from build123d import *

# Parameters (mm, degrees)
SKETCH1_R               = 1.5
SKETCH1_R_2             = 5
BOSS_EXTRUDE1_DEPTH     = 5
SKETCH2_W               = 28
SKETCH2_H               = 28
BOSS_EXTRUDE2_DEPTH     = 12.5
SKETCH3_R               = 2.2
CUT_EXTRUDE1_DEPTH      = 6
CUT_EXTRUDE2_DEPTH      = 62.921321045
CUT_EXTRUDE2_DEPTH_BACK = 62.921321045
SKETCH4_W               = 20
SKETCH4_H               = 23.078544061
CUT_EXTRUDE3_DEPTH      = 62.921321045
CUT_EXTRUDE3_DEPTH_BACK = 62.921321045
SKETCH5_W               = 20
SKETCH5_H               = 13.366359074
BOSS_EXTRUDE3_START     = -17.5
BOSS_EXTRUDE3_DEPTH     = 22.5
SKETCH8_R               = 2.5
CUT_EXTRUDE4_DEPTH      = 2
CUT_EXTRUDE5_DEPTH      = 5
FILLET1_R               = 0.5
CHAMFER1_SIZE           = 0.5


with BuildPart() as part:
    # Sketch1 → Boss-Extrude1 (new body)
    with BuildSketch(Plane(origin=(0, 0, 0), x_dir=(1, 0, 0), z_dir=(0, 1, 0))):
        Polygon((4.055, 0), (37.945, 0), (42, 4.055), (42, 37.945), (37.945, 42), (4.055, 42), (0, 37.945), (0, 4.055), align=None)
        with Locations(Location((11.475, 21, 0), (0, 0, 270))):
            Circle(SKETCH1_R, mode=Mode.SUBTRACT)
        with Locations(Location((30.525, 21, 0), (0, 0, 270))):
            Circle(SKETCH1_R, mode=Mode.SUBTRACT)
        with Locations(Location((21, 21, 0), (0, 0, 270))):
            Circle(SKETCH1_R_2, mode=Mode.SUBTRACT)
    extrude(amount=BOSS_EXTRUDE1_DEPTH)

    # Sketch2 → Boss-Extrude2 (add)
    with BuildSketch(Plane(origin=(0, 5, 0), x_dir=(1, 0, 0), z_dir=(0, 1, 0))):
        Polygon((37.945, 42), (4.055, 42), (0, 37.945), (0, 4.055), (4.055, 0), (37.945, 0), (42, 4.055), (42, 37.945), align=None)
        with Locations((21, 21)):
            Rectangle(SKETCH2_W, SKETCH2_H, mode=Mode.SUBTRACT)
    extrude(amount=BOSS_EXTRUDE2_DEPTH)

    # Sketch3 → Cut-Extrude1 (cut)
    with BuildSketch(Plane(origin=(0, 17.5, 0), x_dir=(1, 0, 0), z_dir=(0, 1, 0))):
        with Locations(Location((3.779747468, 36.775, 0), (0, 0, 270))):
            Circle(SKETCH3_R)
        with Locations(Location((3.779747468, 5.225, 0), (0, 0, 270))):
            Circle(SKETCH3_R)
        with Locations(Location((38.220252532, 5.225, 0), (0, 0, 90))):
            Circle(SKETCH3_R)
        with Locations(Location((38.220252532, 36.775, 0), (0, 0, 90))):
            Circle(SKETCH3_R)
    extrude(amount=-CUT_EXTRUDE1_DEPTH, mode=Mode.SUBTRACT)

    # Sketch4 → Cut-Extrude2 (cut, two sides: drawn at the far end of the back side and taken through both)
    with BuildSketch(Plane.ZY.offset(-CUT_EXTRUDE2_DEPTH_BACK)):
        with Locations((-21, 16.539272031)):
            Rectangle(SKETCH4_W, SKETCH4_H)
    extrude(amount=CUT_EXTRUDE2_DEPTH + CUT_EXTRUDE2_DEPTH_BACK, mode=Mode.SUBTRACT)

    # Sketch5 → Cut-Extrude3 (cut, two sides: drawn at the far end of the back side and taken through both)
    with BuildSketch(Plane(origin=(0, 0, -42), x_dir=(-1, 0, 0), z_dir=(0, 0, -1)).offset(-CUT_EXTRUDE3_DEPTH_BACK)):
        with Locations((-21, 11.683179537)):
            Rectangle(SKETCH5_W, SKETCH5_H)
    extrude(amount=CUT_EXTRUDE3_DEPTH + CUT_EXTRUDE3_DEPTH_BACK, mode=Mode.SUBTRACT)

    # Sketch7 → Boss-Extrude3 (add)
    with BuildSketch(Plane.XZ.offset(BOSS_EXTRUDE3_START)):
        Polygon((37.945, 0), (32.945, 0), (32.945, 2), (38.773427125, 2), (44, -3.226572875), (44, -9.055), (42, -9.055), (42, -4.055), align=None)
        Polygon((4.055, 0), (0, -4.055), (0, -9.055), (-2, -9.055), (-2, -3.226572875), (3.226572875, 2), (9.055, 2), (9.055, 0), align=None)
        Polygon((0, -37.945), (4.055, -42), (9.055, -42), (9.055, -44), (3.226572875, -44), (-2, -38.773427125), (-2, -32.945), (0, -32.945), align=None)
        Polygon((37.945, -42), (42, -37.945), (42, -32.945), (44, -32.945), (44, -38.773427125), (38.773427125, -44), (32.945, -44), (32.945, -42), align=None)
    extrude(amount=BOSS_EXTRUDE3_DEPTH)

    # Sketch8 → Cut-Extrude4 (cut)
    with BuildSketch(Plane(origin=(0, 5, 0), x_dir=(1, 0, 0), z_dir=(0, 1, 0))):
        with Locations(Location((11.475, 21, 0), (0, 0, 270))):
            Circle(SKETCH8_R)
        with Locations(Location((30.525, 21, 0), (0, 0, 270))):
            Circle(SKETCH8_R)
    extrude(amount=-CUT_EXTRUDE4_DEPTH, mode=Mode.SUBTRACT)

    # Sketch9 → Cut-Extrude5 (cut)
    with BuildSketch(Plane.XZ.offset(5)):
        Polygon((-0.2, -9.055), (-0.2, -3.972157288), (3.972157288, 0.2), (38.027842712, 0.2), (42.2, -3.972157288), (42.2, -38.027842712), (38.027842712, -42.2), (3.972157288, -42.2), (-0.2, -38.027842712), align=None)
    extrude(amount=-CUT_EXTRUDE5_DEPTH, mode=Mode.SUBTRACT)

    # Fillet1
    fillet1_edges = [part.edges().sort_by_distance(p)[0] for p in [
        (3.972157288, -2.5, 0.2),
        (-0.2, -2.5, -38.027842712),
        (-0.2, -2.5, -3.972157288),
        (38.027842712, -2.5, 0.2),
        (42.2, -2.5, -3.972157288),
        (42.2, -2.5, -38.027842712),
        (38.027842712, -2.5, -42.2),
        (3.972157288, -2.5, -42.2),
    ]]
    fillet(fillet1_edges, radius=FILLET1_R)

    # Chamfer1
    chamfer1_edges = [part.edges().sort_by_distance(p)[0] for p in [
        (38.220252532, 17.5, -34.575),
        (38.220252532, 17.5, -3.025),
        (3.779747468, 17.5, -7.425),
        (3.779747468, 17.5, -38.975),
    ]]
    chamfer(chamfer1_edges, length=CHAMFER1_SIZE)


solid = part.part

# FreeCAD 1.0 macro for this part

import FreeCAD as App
import Part
import Sketcher


def edges_at(feature, points):
    """Names of the edges that pass closest to the given points."""
    edges = feature.Shape.Edges
    near = lambda p: min(range(len(edges)), key=lambda i: edges[i].distToShape(Part.Vertex(*p))[0])
    return sorted({f"Edge{near(p) + 1}" for p in points})

doc = App.newDocument("Part")
body = doc.addObject("PartDesign::Body", "Body")

sketch1 = body.newObject("Sketcher::SketchObject", "Sketch")
sketch1.AttachmentSupport = (doc.getObject("XZ_Plane"), [""])
sketch1.MapMode = "FlatFace"
sketch1.addGeometry(Part.LineSegment(App.Vector(4.1, 0, 0), App.Vector(37.9, 0, 0)), False)
sketch1.addGeometry(Part.LineSegment(App.Vector(37.9, 0, 0), App.Vector(42, -4.1, 0)), False)
sketch1.addGeometry(Part.LineSegment(App.Vector(42, -4.1, 0), App.Vector(42, -37.9, 0)), False)
sketch1.addGeometry(Part.LineSegment(App.Vector(42, -37.9, 0), App.Vector(37.9, -42, 0)), False)
sketch1.addGeometry(Part.LineSegment(App.Vector(37.9, -42, 0), App.Vector(4.1, -42, 0)), False)
sketch1.addGeometry(Part.LineSegment(App.Vector(4.1, -42, 0), App.Vector(0, -37.9, 0)), False)
sketch1.addGeometry(Part.LineSegment(App.Vector(0, -37.9, 0), App.Vector(0, -4.1, 0)), False)
sketch1.addGeometry(Part.LineSegment(App.Vector(0, -4.1, 0), App.Vector(4.1, 0, 0)), False)
sketch1.addGeometry(Part.Circle(App.Vector(11.5, -21, 0), App.Vector(0, 0, 1), 1.5), False)
sketch1.addGeometry(Part.Circle(App.Vector(21, -21, 0), App.Vector(0, 0, 1), 5), False)
sketch1.addGeometry(Part.Circle(App.Vector(30.5, -21, 0), App.Vector(0, 0, 1), 1.5), False)
sketch1.addConstraint(Sketcher.Constraint("Coincident", 0, 2, 1, 1))
sketch1.addConstraint(Sketcher.Constraint("Coincident", 1, 2, 2, 1))
sketch1.addConstraint(Sketcher.Constraint("Coincident", 2, 2, 3, 1))
sketch1.addConstraint(Sketcher.Constraint("Coincident", 3, 2, 4, 1))
sketch1.addConstraint(Sketcher.Constraint("Coincident", 4, 2, 5, 1))
sketch1.addConstraint(Sketcher.Constraint("Coincident", 5, 2, 6, 1))
sketch1.addConstraint(Sketcher.Constraint("Coincident", 6, 2, 7, 1))
sketch1.addConstraint(Sketcher.Constraint("Coincident", 7, 2, 0, 1))
sketch1.addConstraint(Sketcher.Constraint("Horizontal", 0))
sketch1.addConstraint(Sketcher.Constraint("Vertical", 2))
sketch1.addConstraint(Sketcher.Constraint("Horizontal", 4))
sketch1.addConstraint(Sketcher.Constraint("Vertical", 6))
sketch1.addConstraint(Sketcher.Constraint("Equal", 8, 10))
sketch1.addConstraint(Sketcher.Constraint("PointOnObject", 0, 2, -1))
sketch1.addConstraint(Sketcher.Constraint("PointOnObject", 5, 2, -2))
sketch1.addConstraint(Sketcher.Constraint("Perpendicular", 1, 3))
sketch1.addConstraint(Sketcher.Constraint("Perpendicular", 3, 5))
sketch1.addConstraint(Sketcher.Constraint("Perpendicular", 5, 7))
sketch1.addConstraint(Sketcher.Constraint("Horizontal", 8, 3, 9, 3))
sketch1.addConstraint(Sketcher.Constraint("Horizontal", 9, 3, 10, 3))
sketch1.addConstraint(Sketcher.Constraint("Horizontal", 2, 2, 5, 2))
sketch1.addConstraint(Sketcher.Constraint("Horizontal", 1, 2, 6, 2))
sketch1.addConstraint(Sketcher.Constraint("Vertical", 0, 2, 3, 2))
sketch1.addConstraint(Sketcher.Constraint("Vertical", 4, 2, 7, 2))
sketch1.addConstraint(Sketcher.Constraint("Equal", 4, 2))
sketch1.addConstraint(Sketcher.Constraint("Diameter", 8, 3.0))
sketch1.addConstraint(Sketcher.Constraint("Diameter", 9, 10.0))
sketch1.addConstraint(Sketcher.Constraint("DistanceY", 8, 3, -1, 1, 21.0))
sketch1.addConstraint(Sketcher.Constraint("DistanceX", -1, 1, 9, 3, 21.0))
sketch1.addConstraint(Sketcher.Constraint("DistanceX", -1, 1, 1, 2, 42.0))
sketch1.addConstraint(Sketcher.Constraint("DistanceX", 0, 1, 0, 2, 33.89))
sketch1.addConstraint(Sketcher.Constraint("DistanceX", 8, 3, 10, 3, 19.05))
sketch1.addConstraint(Sketcher.Constraint("DistanceX", 10, 3, 0, 2, 7.42))
pad1 = body.newObject("PartDesign::Pad", "Pad")
pad1.Profile = sketch1
pad1.Length = 5
pad1.Reversed = True

sketch2 = body.newObject("Sketcher::SketchObject", "Sketch001")
sketch2.AttachmentSupport = (doc.getObject("XZ_Plane"), [""])
sketch2.MapMode = "FlatFace"
sketch2.AttachmentOffset = App.Placement(App.Vector(0, 0, -5), App.Rotation())
sketch2.addGeometry(Part.LineSegment(App.Vector(38, -42, 0), App.Vector(4, -42, 0)), False)
sketch2.addGeometry(Part.LineSegment(App.Vector(4, -42, 0), App.Vector(0, -38, 0)), False)
sketch2.addGeometry(Part.LineSegment(App.Vector(0, -38, 0), App.Vector(0, -4, 0)), False)
sketch2.addGeometry(Part.LineSegment(App.Vector(0, -4, 0), App.Vector(4, 0, 0)), False)
sketch2.addGeometry(Part.LineSegment(App.Vector(4, 0, 0), App.Vector(38, 0, 0)), False)
sketch2.addGeometry(Part.LineSegment(App.Vector(38, 0, 0), App.Vector(42, -4, 0)), False)
sketch2.addGeometry(Part.LineSegment(App.Vector(42, -4, 0), App.Vector(42, -38, 0)), False)
sketch2.addGeometry(Part.LineSegment(App.Vector(42, -38, 0), App.Vector(38, -42, 0)), False)
sketch2.addGeometry(Part.LineSegment(App.Vector(35, -7, 0), App.Vector(7, -7, 0)), False)
sketch2.addGeometry(Part.LineSegment(App.Vector(7, -7, 0), App.Vector(7, -35, 0)), False)
sketch2.addGeometry(Part.LineSegment(App.Vector(7, -35, 0), App.Vector(35, -35, 0)), False)
sketch2.addGeometry(Part.LineSegment(App.Vector(35, -35, 0), App.Vector(35, -7, 0)), False)
sketch2.addConstraint(Sketcher.Constraint("Coincident", 0, 2, 1, 1))
sketch2.addConstraint(Sketcher.Constraint("Coincident", 1, 2, 2, 1))
sketch2.addConstraint(Sketcher.Constraint("Coincident", 2, 2, 3, 1))
sketch2.addConstraint(Sketcher.Constraint("Coincident", 3, 2, 4, 1))
sketch2.addConstraint(Sketcher.Constraint("Coincident", 4, 2, 5, 1))
sketch2.addConstraint(Sketcher.Constraint("Coincident", 5, 2, 6, 1))
sketch2.addConstraint(Sketcher.Constraint("Coincident", 6, 2, 7, 1))
sketch2.addConstraint(Sketcher.Constraint("Coincident", 7, 2, 0, 1))
sketch2.addConstraint(Sketcher.Constraint("Coincident", 8, 2, 9, 1))
sketch2.addConstraint(Sketcher.Constraint("Coincident", 9, 2, 10, 1))
sketch2.addConstraint(Sketcher.Constraint("Coincident", 10, 2, 11, 1))
sketch2.addConstraint(Sketcher.Constraint("Coincident", 11, 2, 8, 1))
sketch2.addConstraint(Sketcher.Constraint("Horizontal", 0))
sketch2.addConstraint(Sketcher.Constraint("Vertical", 2))
sketch2.addConstraint(Sketcher.Constraint("Horizontal", 4))
sketch2.addConstraint(Sketcher.Constraint("Vertical", 6))
sketch2.addConstraint(Sketcher.Constraint("Horizontal", 8))
sketch2.addConstraint(Sketcher.Constraint("Vertical", 9))
sketch2.addConstraint(Sketcher.Constraint("Horizontal", 10))
sketch2.addConstraint(Sketcher.Constraint("Vertical", 11))
sketch2.addConstraint(Sketcher.Constraint("PointOnObject", 1, 2, -2))
sketch2.addConstraint(Sketcher.Constraint("PointOnObject", 3, 2, -1))
sketch2.addConstraint(Sketcher.Constraint("Perpendicular", 1, 3))
sketch2.addConstraint(Sketcher.Constraint("Perpendicular", 3, 5))
sketch2.addConstraint(Sketcher.Constraint("Perpendicular", 5, 7))
sketch2.addConstraint(Sketcher.Constraint("Horizontal", 2, 2, 5, 2))
sketch2.addConstraint(Sketcher.Constraint("Horizontal", 1, 2, 6, 2))
sketch2.addConstraint(Sketcher.Constraint("Vertical", 0, 2, 3, 2))
sketch2.addConstraint(Sketcher.Constraint("Vertical", 4, 2, 7, 2))
sketch2.addConstraint(Sketcher.Constraint("Equal", 4, 2))
sketch2.addConstraint(Sketcher.Constraint("Equal", 10, 9))
sketch2.addConstraint(Sketcher.Constraint("DistanceX", 8, 2, 8, 1, 28.0))
sketch2.addConstraint(Sketcher.Constraint("DistanceY", 0, 2, -1, 1, 42.0))
sketch2.addConstraint(Sketcher.Constraint("DistanceX", -1, 1, 8, 2, 7.0))
sketch2.addConstraint(Sketcher.Constraint("DistanceY", 8, 2, -1, 1, 7.0))
sketch2.addConstraint(Sketcher.Constraint("DistanceX", 0, 2, 0, 1, 33.89))
pad2 = body.newObject("PartDesign::Pad", "Pad001")
pad2.Profile = sketch2
pad2.Length = 12.5
pad2.Reversed = True

sketch3 = body.newObject("Sketcher::SketchObject", "Sketch002")
sketch3.AttachmentSupport = (doc.getObject("XZ_Plane"), [""])
sketch3.MapMode = "FlatFace"
sketch3.AttachmentOffset = App.Placement(App.Vector(0, 0, -17.5), App.Rotation())
sketch3.addGeometry(Part.Circle(App.Vector(3.8, -36.8, 0), App.Vector(0, 0, 1), 2.2), False)
sketch3.addGeometry(Part.Circle(App.Vector(3.8, -5.2, 0), App.Vector(0, 0, 1), 2.2), False)
sketch3.addGeometry(Part.Circle(App.Vector(38.2, -5.2, 0), App.Vector(0, 0, 1), 2.2), False)
sketch3.addGeometry(Part.Circle(App.Vector(38.2, -36.8, 0), App.Vector(0, 0, 1), 2.2), False)
sketch3.addConstraint(Sketcher.Constraint("Equal", 0, 1))
sketch3.addConstraint(Sketcher.Constraint("Equal", 1, 2))
sketch3.addConstraint(Sketcher.Constraint("Equal", 2, 3))
sketch3.addConstraint(Sketcher.Constraint("Horizontal", 1, 3, 2, 3))
sketch3.addConstraint(Sketcher.Constraint("Horizontal", 0, 3, 3, 3))
sketch3.addConstraint(Sketcher.Constraint("Vertical", 0, 3, 1, 3))
sketch3.addConstraint(Sketcher.Constraint("Vertical", 2, 3, 3, 3))
sketch3.addConstraint(Sketcher.Constraint("Diameter", 0, 4.4))
sketch3.addConstraint(Sketcher.Constraint("DistanceY", 0, 3, 1, 3, 31.55))
sketch3.addConstraint(Sketcher.Constraint("DistanceY", 0, 3, -1, 1, 36.775))
sketch3.addConstraint(Sketcher.Constraint("DistanceX", -1, 1, 0, 3, 3.779747))
sketch3.addConstraint(Sketcher.Constraint("DistanceX", -1, 1, 2, 3, 38.220253))
pocket1 = body.newObject("PartDesign::Pocket", "Pocket")
pocket1.Profile = sketch3
pocket1.Length = 6
pocket1.Reversed = True

sketch4 = body.newObject("Sketcher::SketchObject", "Sketch003")
sketch4.AttachmentSupport = (doc.getObject("YZ_Plane"), [""])
sketch4.MapMode = "FlatFace"
sketch4.addGeometry(Part.LineSegment(App.Vector(28, -31, 0), App.Vector(5, -31, 0)), False)
sketch4.addGeometry(Part.LineSegment(App.Vector(5, -31, 0), App.Vector(5, -11, 0)), False)
sketch4.addGeometry(Part.LineSegment(App.Vector(5, -11, 0), App.Vector(28, -11, 0)), False)
sketch4.addGeometry(Part.LineSegment(App.Vector(28, -11, 0), App.Vector(28, -31, 0)), False)
sketch4.addConstraint(Sketcher.Constraint("Coincident", 0, 2, 1, 1))
sketch4.addConstraint(Sketcher.Constraint("Coincident", 1, 2, 2, 1))
sketch4.addConstraint(Sketcher.Constraint("Coincident", 2, 2, 3, 1))
sketch4.addConstraint(Sketcher.Constraint("Coincident", 3, 2, 0, 1))
sketch4.addConstraint(Sketcher.Constraint("Horizontal", 0))
sketch4.addConstraint(Sketcher.Constraint("Vertical", 1))
sketch4.addConstraint(Sketcher.Constraint("Horizontal", 2))
sketch4.addConstraint(Sketcher.Constraint("Vertical", 3))
sketch4.addConstraint(Sketcher.Constraint("DistanceY", 1, 1, 1, 2, 20.0))
sketch4.addConstraint(Sketcher.Constraint("DistanceX", -1, 1, 0, 2, 5.0))
sketch4.addConstraint(Sketcher.Constraint("DistanceY", 0, 2, -1, 1, 31.0))
sketch4.addConstraint(Sketcher.Constraint("DistanceX", 0, 2, 0, 1, 23.078544))
pocket2 = body.newObject("PartDesign::Pocket", "Pocket001")
pocket2.Profile = sketch4
pocket2.Type = "ThroughAll"
pocket2.Midplane = True

sketch5 = body.newObject("Sketcher::SketchObject", "Sketch004")
sketch5.AttachmentSupport = (doc.getObject("XY_Plane"), [""])
sketch5.MapMode = "FlatFace"
sketch5.AttachmentOffset = App.Placement(App.Vector(0, 0, -42), App.Rotation())
sketch5.addGeometry(Part.LineSegment(App.Vector(31, 18, 0), App.Vector(31, 5, 0)), False)
sketch5.addGeometry(Part.LineSegment(App.Vector(31, 5, 0), App.Vector(11, 5, 0)), False)
sketch5.addGeometry(Part.LineSegment(App.Vector(11, 5, 0), App.Vector(11, 18, 0)), False)
sketch5.addGeometry(Part.LineSegment(App.Vector(11, 18, 0), App.Vector(31, 18, 0)), False)
sketch5.addConstraint(Sketcher.Constraint("Coincident", 0, 2, 1, 1))
sketch5.addConstraint(Sketcher.Constraint("Coincident", 1, 2, 2, 1))
sketch5.addConstraint(Sketcher.Constraint("Coincident", 2, 2, 3, 1))
sketch5.addConstraint(Sketcher.Constraint("Coincident", 3, 2, 0, 1))
sketch5.addConstraint(Sketcher.Constraint("Vertical", 0))
sketch5.addConstraint(Sketcher.Constraint("Horizontal", 1))
sketch5.addConstraint(Sketcher.Constraint("Vertical", 2))
sketch5.addConstraint(Sketcher.Constraint("Horizontal", 3))
sketch5.addConstraint(Sketcher.Constraint("DistanceX", 1, 2, 1, 1, 20.0))
sketch5.addConstraint(Sketcher.Constraint("DistanceX", -1, 1, 0, 2, 31.0))
sketch5.addConstraint(Sketcher.Constraint("DistanceY", -1, 1, 0, 2, 5.0))
sketch5.addConstraint(Sketcher.Constraint("DistanceY", 0, 2, 0, 1, 13.366359))
pocket3 = body.newObject("PartDesign::Pocket", "Pocket002")
pocket3.Profile = sketch5
pocket3.Type = "ThroughAll"
pocket3.Midplane = True

sketch6 = body.newObject("Sketcher::SketchObject", "Sketch005")
sketch6.AttachmentSupport = (doc.getObject("XZ_Plane"), [""])
sketch6.MapMode = "FlatFace"
sketch6.AttachmentOffset = App.Placement(App.Vector(0, 0, -17.5), App.Rotation())
sketch6.addGeometry(Part.LineSegment(App.Vector(32.9, 0, 0), App.Vector(37.9, 0, 0)), False)
sketch6.addGeometry(Part.LineSegment(App.Vector(37.9, 0, 0), App.Vector(42, -4.1, 0)), False)
sketch6.addGeometry(Part.LineSegment(App.Vector(42, -4.1, 0), App.Vector(42, -9.1, 0)), False)
sketch6.addGeometry(Part.LineSegment(App.Vector(42, -9.1, 0), App.Vector(44, -9.1, 0)), False)
sketch6.addGeometry(Part.LineSegment(App.Vector(44, -9.1, 0), App.Vector(44, -3.2, 0)), False)
sketch6.addGeometry(Part.LineSegment(App.Vector(44, -3.2, 0), App.Vector(38.8, 2, 0)), False)
sketch6.addGeometry(Part.LineSegment(App.Vector(38.8, 2, 0), App.Vector(32.9, 2, 0)), False)
sketch6.addGeometry(Part.LineSegment(App.Vector(32.9, 2, 0), App.Vector(32.9, 0, 0)), False)
sketch6.addGeometry(Part.LineSegment(App.Vector(0, -4.1, 0), App.Vector(4.1, 0, 0)), False)
sketch6.addGeometry(Part.LineSegment(App.Vector(4.1, 0, 0), App.Vector(9.1, 0, 0)), False)
sketch6.addGeometry(Part.LineSegment(App.Vector(9.1, 0, 0), App.Vector(9.1, 2, 0)), False)
sketch6.addGeometry(Part.LineSegment(App.Vector(9.1, 2, 0), App.Vector(3.2, 2, 0)), False)
sketch6.addGeometry(Part.LineSegment(App.Vector(3.2, 2, 0), App.Vector(-2, -3.2, 0)), False)
sketch6.addGeometry(Part.LineSegment(App.Vector(-2, -3.2, 0), App.Vector(-2, -9.1, 0)), False)
sketch6.addGeometry(Part.LineSegment(App.Vector(-2, -9.1, 0), App.Vector(0, -9.1, 0)), False)
sketch6.addGeometry(Part.LineSegment(App.Vector(0, -9.1, 0), App.Vector(0, -4.1, 0)), False)
sketch6.addGeometry(Part.LineSegment(App.Vector(4.1, -42, 0), App.Vector(0, -37.9, 0)), False)
sketch6.addGeometry(Part.LineSegment(App.Vector(0, -37.9, 0), App.Vector(0, -32.9, 0)), False)
sketch6.addGeometry(Part.LineSegment(App.Vector(0, -32.9, 0), App.Vector(-2, -32.9, 0)), False)
sketch6.addGeometry(Part.LineSegment(App.Vector(-2, -32.9, 0), App.Vector(-2, -38.8, 0)), False)
sketch6.addGeometry(Part.LineSegment(App.Vector(-2, -38.8, 0), App.Vector(3.2, -44, 0)), False)
sketch6.addGeometry(Part.LineSegment(App.Vector(3.2, -44, 0), App.Vector(9.1, -44, 0)), False)
sketch6.addGeometry(Part.LineSegment(App.Vector(9.1, -44, 0), App.Vector(9.1, -42, 0)), False)
sketch6.addGeometry(Part.LineSegment(App.Vector(9.1, -42, 0), App.Vector(4.1, -42, 0)), False)
sketch6.addGeometry(Part.LineSegment(App.Vector(42, -37.9, 0), App.Vector(37.9, -42, 0)), False)
sketch6.addGeometry(Part.LineSegment(App.Vector(37.9, -42, 0), App.Vector(32.9, -42, 0)), False)
sketch6.addGeometry(Part.LineSegment(App.Vector(32.9, -42, 0), App.Vector(32.9, -44, 0)), False)
sketch6.addGeometry(Part.LineSegment(App.Vector(32.9, -44, 0), App.Vector(38.8, -44, 0)), False)
sketch6.addGeometry(Part.LineSegment(App.Vector(38.8, -44, 0), App.Vector(44, -38.8, 0)), False)
sketch6.addGeometry(Part.LineSegment(App.Vector(44, -38.8, 0), App.Vector(44, -32.9, 0)), False)
sketch6.addGeometry(Part.LineSegment(App.Vector(44, -32.9, 0), App.Vector(42, -32.9, 0)), False)
sketch6.addGeometry(Part.LineSegment(App.Vector(42, -32.9, 0), App.Vector(42, -37.9, 0)), False)
sketch6.addConstraint(Sketcher.Constraint("Coincident", 0, 2, 1, 1))
sketch6.addConstraint(Sketcher.Constraint("Coincident", 1, 2, 2, 1))
sketch6.addConstraint(Sketcher.Constraint("Coincident", 2, 2, 3, 1))
sketch6.addConstraint(Sketcher.Constraint("Coincident", 3, 2, 4, 1))
sketch6.addConstraint(Sketcher.Constraint("Coincident", 4, 2, 5, 1))
sketch6.addConstraint(Sketcher.Constraint("Coincident", 5, 2, 6, 1))
sketch6.addConstraint(Sketcher.Constraint("Coincident", 6, 2, 7, 1))
sketch6.addConstraint(Sketcher.Constraint("Coincident", 7, 2, 0, 1))
sketch6.addConstraint(Sketcher.Constraint("Coincident", 8, 2, 9, 1))
sketch6.addConstraint(Sketcher.Constraint("Coincident", 9, 2, 10, 1))
sketch6.addConstraint(Sketcher.Constraint("Coincident", 10, 2, 11, 1))
sketch6.addConstraint(Sketcher.Constraint("Coincident", 11, 2, 12, 1))
sketch6.addConstraint(Sketcher.Constraint("Coincident", 12, 2, 13, 1))
sketch6.addConstraint(Sketcher.Constraint("Coincident", 13, 2, 14, 1))
sketch6.addConstraint(Sketcher.Constraint("Coincident", 14, 2, 15, 1))
sketch6.addConstraint(Sketcher.Constraint("Coincident", 15, 2, 8, 1))
sketch6.addConstraint(Sketcher.Constraint("Coincident", 16, 2, 17, 1))
sketch6.addConstraint(Sketcher.Constraint("Coincident", 17, 2, 18, 1))
sketch6.addConstraint(Sketcher.Constraint("Coincident", 18, 2, 19, 1))
sketch6.addConstraint(Sketcher.Constraint("Coincident", 19, 2, 20, 1))
sketch6.addConstraint(Sketcher.Constraint("Coincident", 20, 2, 21, 1))
sketch6.addConstraint(Sketcher.Constraint("Coincident", 21, 2, 22, 1))
sketch6.addConstraint(Sketcher.Constraint("Coincident", 22, 2, 23, 1))
sketch6.addConstraint(Sketcher.Constraint("Coincident", 23, 2, 16, 1))
sketch6.addConstraint(Sketcher.Constraint("Coincident", 24, 2, 25, 1))
sketch6.addConstraint(Sketcher.Constraint("Coincident", 25, 2, 26, 1))
sketch6.addConstraint(Sketcher.Constraint("Coincident", 26, 2, 27, 1))
sketch6.addConstraint(Sketcher.Constraint("Coincident", 27, 2, 28, 1))
sketch6.addConstraint(Sketcher.Constraint("Coincident", 28, 2, 29, 1))
sketch6.addConstraint(Sketcher.Constraint("Coincident", 29, 2, 30, 1))
sketch6.addConstraint(Sketcher.Constraint("Coincident", 30, 2, 31, 1))
sketch6.addConstraint(Sketcher.Constraint("Coincident", 31, 2, 24, 1))
sketch6.addConstraint(Sketcher.Constraint("Horizontal", 0))
sketch6.addConstraint(Sketcher.Constraint("Vertical", 2))
sketch6.addConstraint(Sketcher.Constraint("Horizontal", 3))
sketch6.addConstraint(Sketcher.Constraint("Vertical", 4))
sketch6.addConstraint(Sketcher.Constraint("Horizontal", 6))
sketch6.addConstraint(Sketcher.Constraint("Vertical", 7))
sketch6.addConstraint(Sketcher.Constraint("Horizontal", 9))
sketch6.addConstraint(Sketcher.Constraint("Vertical", 10))
sketch6.addConstraint(Sketcher.Constraint("Horizontal", 11))
sketch6.addConstraint(Sketcher.Constraint("Vertical", 13))
sketch6.addConstraint(Sketcher.Constraint("Horizontal", 14))
sketch6.addConstraint(Sketcher.Constraint("Vertical", 15))
sketch6.addConstraint(Sketcher.Constraint("Vertical", 17))
sketch6.addConstraint(Sketcher.Constraint("Horizontal", 18))
sketch6.addConstraint(Sketcher.Constraint("Vertical", 19))
sketch6.addConstraint(Sketcher.Constraint("Horizontal", 21))
sketch6.addConstraint(Sketcher.Constraint("Vertical", 22))
sketch6.addConstraint(Sketcher.Constraint("Horizontal", 23))
sketch6.addConstraint(Sketcher.Constraint("Horizontal", 25))
sketch6.addConstraint(Sketcher.Constraint("Vertical", 26))
sketch6.addConstraint(Sketcher.Constraint("Horizontal", 27))
sketch6.addConstraint(Sketcher.Constraint("Vertical", 29))
sketch6.addConstraint(Sketcher.Constraint("Horizontal", 30))
sketch6.addConstraint(Sketcher.Constraint("Vertical", 31))
sketch6.addConstraint(Sketcher.Constraint("PointOnObject", 0, 2, -1))
sketch6.addConstraint(Sketcher.Constraint("PointOnObject", 8, 2, -1))
sketch6.addConstraint(Sketcher.Constraint("PointOnObject", 14, 2, -2))
sketch6.addConstraint(Sketcher.Constraint("PointOnObject", 16, 2, -2))
sketch6.addConstraint(Sketcher.Constraint("Parallel", 1, 5))
sketch6.addConstraint(Sketcher.Constraint("Perpendicular", 5, 8))
sketch6.addConstraint(Sketcher.Constraint("Parallel", 8, 12))
sketch6.addConstraint(Sketcher.Constraint("Perpendicular", 12, 16))
sketch6.addConstraint(Sketcher.Constraint("Parallel", 16, 20))
sketch6.addConstraint(Sketcher.Constraint("Perpendicular", 20, 24))
sketch6.addConstraint(Sketcher.Constraint("Parallel", 24, 28))
sketch6.addConstraint(Sketcher.Constraint("Horizontal", 6, 2, 10, 2))
sketch6.addConstraint(Sketcher.Constraint("Horizontal", 4, 2, 12, 2))
sketch6.addConstraint(Sketcher.Constraint("Horizontal", 3, 2, 13, 2))
sketch6.addConstraint(Sketcher.Constraint("Horizontal", 1, 2, 15, 2))
sketch6.addConstraint(Sketcher.Constraint("Horizontal", 23, 2, 24, 2))
sketch6.addConstraint(Sketcher.Constraint("Horizontal", 21, 2, 26, 2))
sketch6.addConstraint(Sketcher.Constraint("Horizontal", 19, 2, 28, 2))
sketch6.addConstraint(Sketcher.Constraint("Horizontal", 18, 2, 29, 2))
sketch6.addConstraint(Sketcher.Constraint("Horizontal", 16, 2, 31, 2))
sketch6.addConstraint(Sketcher.Constraint("Vertical", 13, 2, 18, 2))
sketch6.addConstraint(Sketcher.Constraint("Vertical", 11, 2, 20, 2))
sketch6.addConstraint(Sketcher.Constraint("Vertical", 10, 2, 21, 2))
sketch6.addConstraint(Sketcher.Constraint("Vertical", 8, 2, 23, 2))
sketch6.addConstraint(Sketcher.Constraint("Vertical", 0, 2, 24, 2))
sketch6.addConstraint(Sketcher.Constraint("Vertical", 7, 2, 25, 2))
sketch6.addConstraint(Sketcher.Constraint("Vertical", 5, 2, 27, 2))
sketch6.addConstraint(Sketcher.Constraint("Vertical", 4, 2, 28, 2))
sketch6.addConstraint(Sketcher.Constraint("Equal", 0, 9))
sketch6.addConstraint(Sketcher.Constraint("Equal", 6, 11))
sketch6.addConstraint(Sketcher.Constraint("Equal", 25, 2))
sketch6.addConstraint(Sketcher.Constraint("Equal", 27, 4))
sketch6.addConstraint(Sketcher.Constraint("Equal", 15, 17))
sketch6.addConstraint(Sketcher.Constraint("Equal", 13, 19))
sketch6.addConstraint(Sketcher.Constraint("DistanceX", 0, 1, 0, 2, 5.0))
sketch6.addConstraint(Sketcher.Constraint("DistanceX", 3, 1, 3, 2, 2.0))
sketch6.addConstraint(Sketcher.Constraint("DistanceX", -1, 1, 1, 2, 42.0))
sketch6.addConstraint(Sketcher.Constraint("DistanceY", 20, 2, -1, 1, 44.0))
sketch6.addConstraint(Sketcher.Constraint("DistanceX", 8, 2, 7, 2, 28.89))
sketch6.addConstraint(Sketcher.Constraint("Distance", 5, 7.39149))
pad3 = body.newObject("PartDesign::Pad", "Pad002")
pad3.Profile = sketch6
pad3.Length = 22.5

sketch7 = body.newObject("Sketcher::SketchObject", "Sketch006")
sketch7.AttachmentSupport = (doc.getObject("XZ_Plane"), [""])
sketch7.MapMode = "FlatFace"
sketch7.AttachmentOffset = App.Placement(App.Vector(0, 0, -5), App.Rotation())
sketch7.addGeometry(Part.Circle(App.Vector(11.5, -21, 0), App.Vector(0, 0, 1), 2.5), False)
sketch7.addGeometry(Part.Circle(App.Vector(30.5, -21, 0), App.Vector(0, 0, 1), 2.5), False)
sketch7.addConstraint(Sketcher.Constraint("Equal", 0, 1))
sketch7.addConstraint(Sketcher.Constraint("Horizontal", 0, 3, 1, 3))
sketch7.addConstraint(Sketcher.Constraint("Diameter", 0, 5.0))
sketch7.addConstraint(Sketcher.Constraint("DistanceY", 0, 3, -1, 1, 21.0))
sketch7.addConstraint(Sketcher.Constraint("DistanceX", 0, 3, 1, 3, 19.05))
sketch7.addConstraint(Sketcher.Constraint("DistanceX", -1, 1, 0, 3, 11.475))
pocket4 = body.newObject("PartDesign::Pocket", "Pocket003")
pocket4.Profile = sketch7
pocket4.Length = 2
pocket4.Reversed = True

sketch8 = body.newObject("Sketcher::SketchObject", "Sketch007")
sketch8.AttachmentSupport = (doc.getObject("XZ_Plane"), [""])
sketch8.MapMode = "FlatFace"
sketch8.AttachmentOffset = App.Placement(App.Vector(0, 0, 5), App.Rotation())
sketch8.addGeometry(Part.LineSegment(App.Vector(0, -4, 0), App.Vector(0, -38, 0)), False)
sketch8.addGeometry(Part.LineSegment(App.Vector(0, -38, 0), App.Vector(4, -42, 0)), False)
sketch8.addGeometry(Part.LineSegment(App.Vector(4, -42, 0), App.Vector(38, -42, 0)), False)
sketch8.addGeometry(Part.LineSegment(App.Vector(38, -42, 0), App.Vector(42, -38, 0)), False)
sketch8.addGeometry(Part.LineSegment(App.Vector(42, -38, 0), App.Vector(42, -4, 0)), False)
sketch8.addGeometry(Part.LineSegment(App.Vector(42, -4, 0), App.Vector(38, 0, 0)), False)
sketch8.addGeometry(Part.LineSegment(App.Vector(38, 0, 0), App.Vector(4, 0, 0)), False)
sketch8.addGeometry(Part.LineSegment(App.Vector(4, 0, 0), App.Vector(0, -4, 0)), False)
sketch8.addConstraint(Sketcher.Constraint("Coincident", 0, 2, 1, 1))
sketch8.addConstraint(Sketcher.Constraint("Coincident", 1, 2, 2, 1))
sketch8.addConstraint(Sketcher.Constraint("Coincident", 2, 2, 3, 1))
sketch8.addConstraint(Sketcher.Constraint("Coincident", 3, 2, 4, 1))
sketch8.addConstraint(Sketcher.Constraint("Coincident", 4, 2, 5, 1))
sketch8.addConstraint(Sketcher.Constraint("Coincident", 5, 2, 6, 1))
sketch8.addConstraint(Sketcher.Constraint("Coincident", 6, 2, 7, 1))
sketch8.addConstraint(Sketcher.Constraint("Coincident", 7, 2, 0, 1))
sketch8.addConstraint(Sketcher.Constraint("Vertical", 0))
sketch8.addConstraint(Sketcher.Constraint("Horizontal", 2))
sketch8.addConstraint(Sketcher.Constraint("Vertical", 4))
sketch8.addConstraint(Sketcher.Constraint("Horizontal", 6))
sketch8.addConstraint(Sketcher.Constraint("Perpendicular", 1, 3))
sketch8.addConstraint(Sketcher.Constraint("Perpendicular", 3, 5))
sketch8.addConstraint(Sketcher.Constraint("Perpendicular", 5, 7))
sketch8.addConstraint(Sketcher.Constraint("Horizontal", 0, 2, 3, 2))
sketch8.addConstraint(Sketcher.Constraint("Horizontal", 4, 2, 7, 2))
sketch8.addConstraint(Sketcher.Constraint("Vertical", 2, 2, 5, 2))
sketch8.addConstraint(Sketcher.Constraint("Vertical", 1, 2, 6, 2))
sketch8.addConstraint(Sketcher.Constraint("Equal", 6, 0))
sketch8.addConstraint(Sketcher.Constraint("DistanceX", 0, 2, -1, 1, 0.2))
sketch8.addConstraint(Sketcher.Constraint("DistanceY", 1, 2, -1, 1, 42.2))
sketch8.addConstraint(Sketcher.Constraint("DistanceX", -1, 1, 3, 2, 42.2))
sketch8.addConstraint(Sketcher.Constraint("Distance", 1, 5.900321))
pocket5 = body.newObject("PartDesign::Pocket", "Pocket004")
pocket5.Profile = sketch8
pocket5.Length = 5
doc.recompute()

fillet = body.newObject("PartDesign::Fillet", "Fillet")
fillet.Base = (pocket5, edges_at(pocket5, [
    (3.972, -2.5, 0.2),
    (-0.2, -2.5, -38.028),
    (-0.2, -2.5, -3.972),
    (38.028, -2.5, 0.2),
    (42.2, -2.5, -3.972),
    (42.2, -2.5, -38.028),
    (38.028, -2.5, -42.2),
    (3.972, -2.5, -42.2),
]))
fillet.Radius = 0.5
doc.recompute()

chamfer = body.newObject("PartDesign::Chamfer", "Chamfer")
chamfer.Base = (fillet, edges_at(fillet, [
    (38.22, 17.5, -34.575),
    (38.22, 17.5, -3.025),
    (3.78, 17.5, -7.425),
    (3.78, 17.5, -38.975),
]))
chamfer.Size = 0.5

doc.recompute()
